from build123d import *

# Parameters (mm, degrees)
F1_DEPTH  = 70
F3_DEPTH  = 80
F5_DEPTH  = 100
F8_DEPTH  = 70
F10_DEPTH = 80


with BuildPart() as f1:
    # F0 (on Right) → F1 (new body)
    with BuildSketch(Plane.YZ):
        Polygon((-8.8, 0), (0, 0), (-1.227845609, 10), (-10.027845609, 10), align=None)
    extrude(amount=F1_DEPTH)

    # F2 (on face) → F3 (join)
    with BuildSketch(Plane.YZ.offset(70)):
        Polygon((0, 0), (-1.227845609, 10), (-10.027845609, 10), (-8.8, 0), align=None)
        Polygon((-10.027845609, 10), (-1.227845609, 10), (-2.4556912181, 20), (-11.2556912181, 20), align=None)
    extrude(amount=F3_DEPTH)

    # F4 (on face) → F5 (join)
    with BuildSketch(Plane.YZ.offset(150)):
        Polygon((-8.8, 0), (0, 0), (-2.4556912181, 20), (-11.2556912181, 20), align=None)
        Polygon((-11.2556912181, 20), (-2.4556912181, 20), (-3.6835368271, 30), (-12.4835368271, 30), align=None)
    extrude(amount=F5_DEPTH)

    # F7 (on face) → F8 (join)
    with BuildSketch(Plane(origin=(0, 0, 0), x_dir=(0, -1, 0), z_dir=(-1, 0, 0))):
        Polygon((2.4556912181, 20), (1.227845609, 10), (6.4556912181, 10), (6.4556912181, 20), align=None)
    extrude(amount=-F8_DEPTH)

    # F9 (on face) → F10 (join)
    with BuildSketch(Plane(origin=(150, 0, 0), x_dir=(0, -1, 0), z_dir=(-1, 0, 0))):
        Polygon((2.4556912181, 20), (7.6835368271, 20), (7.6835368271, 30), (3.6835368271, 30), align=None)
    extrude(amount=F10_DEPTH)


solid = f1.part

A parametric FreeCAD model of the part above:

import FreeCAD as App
import Part
import Sketcher

V = App.Vector
Q = App.Units.Quantity

doc = App.newDocument("Part")
params = doc.addObject("Spreadsheet::Sheet", "Params")
for row, (alias, value) in enumerate([
    ("sketch1_width", "8.8 mm"),
    ("pad1_length", "70 mm"),
    ("sketch2_width", "8.8 mm"),
    ("pad2_length", "80 mm"),
    ("sketch3_width", "8.8 mm"),
    ("pad3_length", "100 mm"),
    ("sketch4_width", "4 mm"),
    ("sketch4_height", "10 mm"),
    ("pad4_length", "70 mm"),
    ("sketch5_width", "4 mm"),
    ("sketch5_height", "10 mm"),
    ("pad5_length", "80 mm"),
], start=1):
    params.set(f"A{row}", alias)
    params.set(f"B{row}", "=" + value)
    params.setAlias(f"B{row}", alias)

body = doc.addObject("PartDesign::Body", "Body")

# Sketch on YZ plane
sketch1 = body.newObject("Sketcher::SketchObject", "Sketch")
sketch1.AttachmentSupport = (doc.getObject("YZ_Plane"), [""])
sketch1.MapMode = "FlatFace"
sketch1.addGeometry([
    Part.LineSegment(V(-9, 0, 0), V(0, 0, 0)),
    Part.LineSegment(V(0, 0, 0), V(-1, 10, 0)),
    Part.LineSegment(V(-1, 10, 0), V(-10, 10, 0)),
    Part.LineSegment(V(-10, 10, 0), V(-9, 0, 0)),
], False)
sketch1.addConstraint([
    Sketcher.Constraint("Coincident", 0, 2, 1, 1),
    Sketcher.Constraint("Coincident", 1, 2, 2, 1),
    Sketcher.Constraint("Coincident", 2, 2, 3, 1),
    Sketcher.Constraint("Coincident", 3, 2, 0, 1),
    Sketcher.Constraint("Horizontal", 0),
    Sketcher.Constraint("Horizontal", 2),
    Sketcher.Constraint("Coincident", 0, 2, -1, 1),
    Sketcher.Constraint("Parallel", 1, 3),
    Sketcher.Constraint("Angle", 1, Q("97 deg")),
    Sketcher.Constraint("DistanceX", 0, 1, 0, 2, 8.8),
    Sketcher.Constraint("DistanceY", -1, 1, 1, 2, 10.0),
])
sketch1.setExpression("Constraints[9]", "Params.sketch1_width")
pad1 = body.newObject("PartDesign::Pad", "Pad")
pad1.Profile = sketch1
pad1.setExpression("Length", "Params.pad1_length")

# Sketch on YZ plane
sketch2 = body.newObject("Sketcher::SketchObject", "Sketch001")
sketch2.AttachmentSupport = (doc.getObject("YZ_Plane"), [""])
sketch2.MapMode = "FlatFace"
sketch2.AttachmentOffset = App.Placement(V(0, 0, 70), App.Rotation())
sketch2.addGeometry([
    Part.LineSegment(V(0, 0, 0), V(-1, 10, 0)),  # 0
    Part.LineSegment(V(-1, 10, 0), V(-2, 20, 0)),  # 1
    Part.LineSegment(V(-2, 20, 0), V(-11, 20, 0)),  # 2
    Part.LineSegment(V(-11, 20, 0), V(-10, 10, 0)),  # 3
    Part.LineSegment(V(-10, 10, 0), V(-9, 0, 0)),  # 4
    Part.LineSegment(V(-9, 0, 0), V(0, 0, 0)),  # 5
], False)
sketch2.addConstraint([
    Sketcher.Constraint("Coincident", 0, 2, 1, 1),
    Sketcher.Constraint("Coincident", 1, 2, 2, 1),
    Sketcher.Constraint("Coincident", 2, 2, 3, 1),
    Sketcher.Constraint("Coincident", 3, 2, 4, 1),
    Sketcher.Constraint("Coincident", 4, 2, 5, 1),
    Sketcher.Constraint("Coincident", 5, 2, 0, 1),
    Sketcher.Constraint("Horizontal", 2),
    Sketcher.Constraint("Horizontal", 5),
    Sketcher.Constraint("Coincident", 5, 2, -1, 1),
    Sketcher.Constraint("Parallel", 0, 1),
    Sketcher.Constraint("Parallel", 1, 3),
    Sketcher.Constraint("Parallel", 3, 4),
    Sketcher.Constraint("Horizontal", 0, 2, 3, 2),
    Sketcher.Constraint("Equal", 0, 1),
    Sketcher.Constraint("Angle", 0, Q("97 deg")),
    Sketcher.Constraint("DistanceX", 2, 2, 2, 1, 8.8),
    Sketcher.Constraint("DistanceY", -1, 1, 0, 2, 10.0),
])
sketch2.setExpression("Constraints[15]", "Params.sketch2_width")
pad2 = body.newObject("PartDesign::Pad", "Pad001")
pad2.Profile = sketch2
pad2.setExpression("Length", "Params.pad2_length")

# Sketch on YZ plane
sketch3 = body.newObject("Sketcher::SketchObject", "Sketch002")
sketch3.AttachmentSupport = (doc.getObject("YZ_Plane"), [""])
sketch3.MapMode = "FlatFace"
sketch3.AttachmentOffset = App.Placement(V(0, 0, 150), App.Rotation())
sketch3.addGeometry([
    Part.LineSegment(V(-9, 0, 0), V(0, 0, 0)),  # 0
    Part.LineSegment(V(0, 0, 0), V(-2, 20, 0)),  # 1
    Part.LineSegment(V(-2, 20, 0), V(-4, 30, 0)),  # 2
    Part.LineSegment(V(-4, 30, 0), V(-12, 30, 0)),  # 3
    Part.LineSegment(V(-12, 30, 0), V(-11, 20, 0)),  # 4
    Part.LineSegment(V(-11, 20, 0), V(-9, 0, 0)),  # 5
], False)
sketch3.addConstraint([
    Sketcher.Constraint("Coincident", 0, 2, 1, 1),
    Sketcher.Constraint("Coincident", 1, 2, 2, 1),
    Sketcher.Constraint("Coincident", 2, 2, 3, 1),
    Sketcher.Constraint("Coincident", 3, 2, 4, 1),
    Sketcher.Constraint("Coincident", 4, 2, 5, 1),
    Sketcher.Constraint("Coincident", 5, 2, 0, 1),
    Sketcher.Constraint("Horizontal", 0),
    Sketcher.Constraint("Horizontal", 3),
    Sketcher.Constraint("Coincident", 0, 2, -1, 1),
    Sketcher.Constraint("Parallel", 1, 2),
    Sketcher.Constraint("Parallel", 2, 4),
    Sketcher.Constraint("Parallel", 4, 5),
    Sketcher.Constraint("Horizontal", 1, 2, 4, 2),
    Sketcher.Constraint("Angle", 1, Q("97 deg")),
    Sketcher.Constraint("DistanceX", 0, 1, 0, 2, 8.8),
    Sketcher.Constraint("DistanceY", -1, 1, 1, 2, 20.0),
    Sketcher.Constraint("DistanceY", -1, 1, 2, 2, 30.0),
])
sketch3.setExpression("Constraints[14]", "Params.sketch3_width")
pad3 = body.newObject("PartDesign::Pad", "Pad002")
pad3.Profile = sketch3
pad3.setExpression("Length", "Params.pad3_length")

# Sketch on YZ plane
sketch4 = body.newObject("Sketcher::SketchObject", "Sketch003")
sketch4.AttachmentSupport = (doc.getObject("YZ_Plane"), [""])
sketch4.MapMode = "FlatFace"
sketch4.addGeometry([
    Part.LineSegment(V(-2.5, 20, 0), V(-1.2, 10, 0)),
    Part.LineSegment(V(-1.2, 10, 0), V(-6.5, 10, 0)),
    Part.LineSegment(V(-6.5, 10, 0), V(-6.5, 20, 0)),
    Part.LineSegment(V(-6.5, 20, 0), V(-2.5, 20, 0)),
], False)
sketch4.addConstraint([
    Sketcher.Constraint("Coincident", 0, 2, 1, 1),
    Sketcher.Constraint("Coincident", 1, 2, 2, 1),
    Sketcher.Constraint("Coincident", 2, 2, 3, 1),
    Sketcher.Constraint("Coincident", 3, 2, 0, 1),
    Sketcher.Constraint("Horizontal", 1),
    Sketcher.Constraint("Vertical", 2),
    Sketcher.Constraint("Horizontal", 3),
    Sketcher.Constraint("DistanceX", 3, 1, 3, 2, 4.0),
    Sketcher.Constraint("DistanceY", 2, 1, 2, 2, 10.0),
    Sketcher.Constraint("Angle", 0, Q("-83 deg")),
    Sketcher.Constraint("DistanceY", -1, 1, 0, 2, 10.0),
    Sketcher.Constraint("DistanceX", 1, 2, -1, 1, 6.455691),
])
sketch4.setExpression("Constraints[7]", "Params.sketch4_width")
sketch4.setExpression("Constraints[8]", "Params.sketch4_height")
pad4 = body.newObject("PartDesign::Pad", "Pad003")
pad4.Profile = sketch4
pad4.setExpression("Length", "Params.pad4_length")

# Sketch on YZ plane
sketch5 = body.newObject("Sketcher::SketchObject", "Sketch004")
sketch5.AttachmentSupport = (doc.getObject("YZ_Plane"), [""])
sketch5.MapMode = "FlatFace"
sketch5.AttachmentOffset = App.Placement(V(0, 0, 150), App.Rotation())
sketch5.addGeometry([
    Part.LineSegment(V(-2.5, 20, 0), V(-7.7, 20, 0)),
    Part.LineSegment(V(-7.7, 20, 0), V(-7.7, 30, 0)),
    Part.LineSegment(V(-7.7, 30, 0), V(-3.7, 30, 0)),
    Part.LineSegment(V(-3.7, 30, 0), V(-2.5, 20, 0)),
], False)
sketch5.addConstraint([
    Sketcher.Constraint("Coincident", 0, 2, 1, 1),
    Sketcher.Constraint("Coincident", 1, 2, 2, 1),
    Sketcher.Constraint("Coincident", 2, 2, 3, 1),
    Sketcher.Constraint("Coincident", 3, 2, 0, 1),
    Sketcher.Constraint("Horizontal", 0),
    Sketcher.Constraint("Vertical", 1),
    Sketcher.Constraint("Horizontal", 2),
    Sketcher.Constraint("DistanceX", 2, 1, 2, 2, 4.0),
    Sketcher.Constraint("DistanceY", 1, 1, 1, 2, 10.0),
    Sketcher.Constraint("Angle", 3, Q("-83 deg")),
    Sketcher.Constraint("DistanceY", -1, 1, 0, 2, 20.0),
    Sketcher.Constraint("DistanceX", 3, 2, -1, 1, 2.455691),
])
sketch5.setExpression("Constraints[7]", "Params.sketch5_width")
sketch5.setExpression("Constraints[8]", "Params.sketch5_height")
pad5 = body.newObject("PartDesign::Pad", "Pad004")
pad5.Profile = sketch5
pad5.setExpression("Length", "Params.pad5_length")
pad5.Reversed = True

doc.recompute()
